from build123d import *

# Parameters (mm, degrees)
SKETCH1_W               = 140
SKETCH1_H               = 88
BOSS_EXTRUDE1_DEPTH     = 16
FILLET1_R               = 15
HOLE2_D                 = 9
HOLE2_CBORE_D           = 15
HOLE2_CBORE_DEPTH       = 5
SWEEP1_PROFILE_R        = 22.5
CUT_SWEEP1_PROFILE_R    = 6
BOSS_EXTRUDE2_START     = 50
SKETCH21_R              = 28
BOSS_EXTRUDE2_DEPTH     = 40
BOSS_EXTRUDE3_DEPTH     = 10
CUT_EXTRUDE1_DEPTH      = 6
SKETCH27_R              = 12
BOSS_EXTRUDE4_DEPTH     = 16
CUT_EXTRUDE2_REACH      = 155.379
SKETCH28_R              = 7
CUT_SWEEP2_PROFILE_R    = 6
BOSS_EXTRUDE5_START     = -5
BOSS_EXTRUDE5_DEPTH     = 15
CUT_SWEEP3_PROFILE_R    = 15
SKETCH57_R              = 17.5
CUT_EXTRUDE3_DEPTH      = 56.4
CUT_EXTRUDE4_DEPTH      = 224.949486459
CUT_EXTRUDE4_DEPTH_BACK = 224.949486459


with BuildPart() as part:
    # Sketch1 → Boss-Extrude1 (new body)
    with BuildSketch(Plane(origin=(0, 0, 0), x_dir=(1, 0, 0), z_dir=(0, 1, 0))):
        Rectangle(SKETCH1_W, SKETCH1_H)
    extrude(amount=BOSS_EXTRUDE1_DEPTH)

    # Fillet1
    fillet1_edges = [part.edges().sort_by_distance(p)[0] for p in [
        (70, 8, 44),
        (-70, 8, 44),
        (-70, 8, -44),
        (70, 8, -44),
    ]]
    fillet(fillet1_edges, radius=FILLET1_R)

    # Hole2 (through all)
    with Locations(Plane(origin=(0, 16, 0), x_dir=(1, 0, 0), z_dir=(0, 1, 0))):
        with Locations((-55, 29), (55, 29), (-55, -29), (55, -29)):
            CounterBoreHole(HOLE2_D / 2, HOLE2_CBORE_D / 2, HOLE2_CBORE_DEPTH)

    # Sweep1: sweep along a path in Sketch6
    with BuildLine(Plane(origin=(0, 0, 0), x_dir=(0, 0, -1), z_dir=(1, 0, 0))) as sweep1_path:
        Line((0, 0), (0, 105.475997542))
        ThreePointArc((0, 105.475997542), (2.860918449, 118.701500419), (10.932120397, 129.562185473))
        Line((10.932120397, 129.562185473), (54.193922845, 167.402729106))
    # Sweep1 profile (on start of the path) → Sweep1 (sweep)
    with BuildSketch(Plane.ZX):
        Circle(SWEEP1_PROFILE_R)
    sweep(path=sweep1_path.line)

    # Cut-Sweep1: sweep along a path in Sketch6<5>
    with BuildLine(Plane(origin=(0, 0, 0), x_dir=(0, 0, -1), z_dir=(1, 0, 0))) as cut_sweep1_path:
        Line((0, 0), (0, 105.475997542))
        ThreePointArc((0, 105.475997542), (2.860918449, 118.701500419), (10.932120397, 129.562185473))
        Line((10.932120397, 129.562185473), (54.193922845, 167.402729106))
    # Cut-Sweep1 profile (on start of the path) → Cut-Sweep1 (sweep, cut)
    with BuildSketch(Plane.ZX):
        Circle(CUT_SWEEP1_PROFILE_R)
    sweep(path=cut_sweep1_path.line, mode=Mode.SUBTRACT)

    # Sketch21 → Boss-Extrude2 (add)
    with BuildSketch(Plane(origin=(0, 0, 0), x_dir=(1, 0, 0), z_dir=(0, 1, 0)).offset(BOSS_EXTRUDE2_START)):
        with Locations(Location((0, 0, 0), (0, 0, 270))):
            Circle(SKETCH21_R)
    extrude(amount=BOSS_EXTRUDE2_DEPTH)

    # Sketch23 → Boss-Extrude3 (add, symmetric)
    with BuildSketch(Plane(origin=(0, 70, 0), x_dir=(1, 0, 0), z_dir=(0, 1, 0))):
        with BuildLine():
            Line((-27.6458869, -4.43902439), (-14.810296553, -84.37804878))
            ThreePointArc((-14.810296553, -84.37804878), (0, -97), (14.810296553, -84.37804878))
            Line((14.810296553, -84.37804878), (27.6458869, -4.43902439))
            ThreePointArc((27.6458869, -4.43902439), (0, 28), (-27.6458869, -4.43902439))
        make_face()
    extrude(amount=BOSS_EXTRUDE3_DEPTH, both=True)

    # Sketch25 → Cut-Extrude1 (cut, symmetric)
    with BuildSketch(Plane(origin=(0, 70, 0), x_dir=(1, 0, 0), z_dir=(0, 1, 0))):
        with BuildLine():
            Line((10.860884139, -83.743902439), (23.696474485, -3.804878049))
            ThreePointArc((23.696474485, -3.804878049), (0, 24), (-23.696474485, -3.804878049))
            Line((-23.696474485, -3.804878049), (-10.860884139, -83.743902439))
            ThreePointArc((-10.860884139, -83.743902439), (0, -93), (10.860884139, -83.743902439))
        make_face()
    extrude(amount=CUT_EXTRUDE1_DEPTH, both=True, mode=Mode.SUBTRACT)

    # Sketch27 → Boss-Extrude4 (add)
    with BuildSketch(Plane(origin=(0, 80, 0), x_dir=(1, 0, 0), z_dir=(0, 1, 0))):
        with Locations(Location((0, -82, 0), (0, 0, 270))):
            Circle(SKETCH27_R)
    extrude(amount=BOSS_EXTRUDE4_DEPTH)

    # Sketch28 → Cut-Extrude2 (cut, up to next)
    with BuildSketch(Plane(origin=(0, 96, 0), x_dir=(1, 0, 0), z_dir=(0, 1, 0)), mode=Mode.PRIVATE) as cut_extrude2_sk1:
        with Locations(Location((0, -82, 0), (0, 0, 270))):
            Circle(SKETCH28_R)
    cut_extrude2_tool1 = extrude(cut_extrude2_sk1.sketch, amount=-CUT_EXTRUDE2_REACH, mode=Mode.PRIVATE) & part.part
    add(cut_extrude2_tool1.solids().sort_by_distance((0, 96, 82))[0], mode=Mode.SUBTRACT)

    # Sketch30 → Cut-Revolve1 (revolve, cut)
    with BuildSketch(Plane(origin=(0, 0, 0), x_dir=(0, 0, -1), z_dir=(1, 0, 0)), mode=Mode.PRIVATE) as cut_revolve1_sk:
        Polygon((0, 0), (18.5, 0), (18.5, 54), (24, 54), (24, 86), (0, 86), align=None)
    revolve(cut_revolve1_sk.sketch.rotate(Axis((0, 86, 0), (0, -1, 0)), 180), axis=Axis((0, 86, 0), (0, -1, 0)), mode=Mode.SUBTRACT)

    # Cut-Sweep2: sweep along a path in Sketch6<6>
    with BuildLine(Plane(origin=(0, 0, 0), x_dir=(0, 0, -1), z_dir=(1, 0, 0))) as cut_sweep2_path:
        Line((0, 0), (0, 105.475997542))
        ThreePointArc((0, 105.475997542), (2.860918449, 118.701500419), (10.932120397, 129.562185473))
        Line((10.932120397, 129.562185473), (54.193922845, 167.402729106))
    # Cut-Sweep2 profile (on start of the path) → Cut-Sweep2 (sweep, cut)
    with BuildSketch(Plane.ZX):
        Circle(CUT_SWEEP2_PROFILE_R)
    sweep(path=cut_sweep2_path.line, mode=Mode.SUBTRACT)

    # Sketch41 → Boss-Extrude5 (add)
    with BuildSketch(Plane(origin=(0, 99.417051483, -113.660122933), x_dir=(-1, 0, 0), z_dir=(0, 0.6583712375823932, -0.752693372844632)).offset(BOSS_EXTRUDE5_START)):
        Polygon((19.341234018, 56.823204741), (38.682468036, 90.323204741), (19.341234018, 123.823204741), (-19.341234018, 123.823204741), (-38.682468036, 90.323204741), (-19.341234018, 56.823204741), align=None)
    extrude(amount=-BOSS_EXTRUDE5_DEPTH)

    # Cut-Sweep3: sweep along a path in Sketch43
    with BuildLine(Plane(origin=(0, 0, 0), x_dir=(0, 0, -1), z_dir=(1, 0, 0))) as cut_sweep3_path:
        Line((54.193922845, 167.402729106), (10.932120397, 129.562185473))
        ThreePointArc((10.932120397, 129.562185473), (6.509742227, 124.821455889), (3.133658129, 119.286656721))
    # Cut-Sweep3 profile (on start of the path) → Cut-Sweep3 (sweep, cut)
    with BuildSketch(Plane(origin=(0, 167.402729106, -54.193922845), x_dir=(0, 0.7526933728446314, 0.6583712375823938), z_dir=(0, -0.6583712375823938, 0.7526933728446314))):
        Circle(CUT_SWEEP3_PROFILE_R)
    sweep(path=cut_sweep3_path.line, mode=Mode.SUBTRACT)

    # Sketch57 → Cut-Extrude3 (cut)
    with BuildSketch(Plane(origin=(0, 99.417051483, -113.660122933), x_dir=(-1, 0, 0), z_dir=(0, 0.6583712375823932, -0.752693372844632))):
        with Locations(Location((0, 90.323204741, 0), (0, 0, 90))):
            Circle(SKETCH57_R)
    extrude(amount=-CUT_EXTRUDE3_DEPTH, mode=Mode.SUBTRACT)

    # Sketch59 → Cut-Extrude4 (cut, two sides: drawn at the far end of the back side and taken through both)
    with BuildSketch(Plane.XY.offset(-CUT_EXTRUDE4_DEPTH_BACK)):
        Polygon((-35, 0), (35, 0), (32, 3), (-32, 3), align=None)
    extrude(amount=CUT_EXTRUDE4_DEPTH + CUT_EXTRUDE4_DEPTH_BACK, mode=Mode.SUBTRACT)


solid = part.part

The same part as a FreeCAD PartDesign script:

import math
import FreeCAD as App
import Part
import Sketcher

V = App.Vector
Q = App.Units.Quantity


def edges_at(feature, points):
    """Names of the edges that pass closest to the given points."""
    edges = feature.Shape.Edges
    near = lambda p: min(range(len(edges)), key=lambda i: edges[i].distToShape(Part.Vertex(*p))[0])
    return sorted({f"Edge{near(p) + 1}" for p in points})


def add_polygon(sketch, points):
    """Adds a closed chain of lines whose ends are joined by coincident constraints."""
    first, n = sketch.GeometryCount, len(points)
    for a, b in zip(points, points[1:] + points[:1]):
        sketch.addGeometry(Part.LineSegment(App.Vector(*a, 0), App.Vector(*b, 0)), False)
    for i in range(n):
        sketch.addConstraint(Sketcher.Constraint("Coincident", first + i, 2, first + (i + 1) % n, 1))

doc = App.newDocument("Part")
body = doc.addObject("PartDesign::Body", "Body")

# Sketch on XZ plane
sketch1 = body.newObject("Sketcher::SketchObject", "Sketch")
sketch1.AttachmentSupport = (doc.getObject("XZ_Plane"), [""])
sketch1.MapMode = "FlatFace"
add_polygon(sketch1, [(-70, -44), (-70, 44), (70, 44), (70, -44)])  # lines 0-3
sketch1.addConstraint([
    Sketcher.Constraint("Vertical", 0),
    Sketcher.Constraint("Horizontal", 1),
    Sketcher.Constraint("Vertical", 2),
    Sketcher.Constraint("Horizontal", 3),
    Sketcher.Constraint("Symmetric", 0, 2, 2, 2, -1, 1),
    Sketcher.Constraint("DistanceX", 1, 1, 1, 2, Q("140 mm")),
    Sketcher.Constraint("DistanceY", 0, 1, 0, 2, Q("88 mm")),
])
pad1 = body.newObject("PartDesign::Pad", "Pad")
pad1.Profile = sketch1
pad1.Length = 16
pad1.Reversed = True
doc.recompute()

fillet = body.newObject("PartDesign::Fillet", "Fillet")
fillet.Base = (pad1, edges_at(pad1, [
    (70, 8, 44),
    (-70, 8, 44),
    (-70, 8, -44),
    (70, 8, -44),
]))
fillet.Radius = 15

# Sketch on XZ plane
sketch2 = body.newObject("Sketcher::SketchObject", "Sketch001")
sketch2.AttachmentSupport = (doc.getObject("XZ_Plane"), [""])
sketch2.MapMode = "FlatFace"
sketch2.AttachmentOffset = App.Placement(V(0, 0, -16), App.Rotation())
sketch2.addGeometry([
    Part.Circle(V(-55, -29, 0), V(0, 0, 1), 4.5),
    Part.Circle(V(55, -29, 0), V(0, 0, 1), 4.5),
    Part.Circle(V(-55, 29, 0), V(0, 0, 1), 4.5),
    Part.Circle(V(55, 29, 0), V(0, 0, 1), 4.5),
], False)
sketch2.addConstraint([
    Sketcher.Constraint("Equal", 0, 1),
    Sketcher.Constraint("Equal", 1, 2),
    Sketcher.Constraint("Equal", 2, 3),
    Sketcher.Constraint("Symmetric", 1, 3, 2, 3, -1, 1),
    Sketcher.Constraint("Symmetric", 0, 3, 3, 3, -1, 1),
    Sketcher.Constraint("Symmetric", 0, 3, 1, 3, -2),
    Sketcher.Constraint("Diameter", 0, Q("9 mm")),
    Sketcher.Constraint("DistanceX", 0, 3, -1, 1, Q("55 mm")),
    Sketcher.Constraint("DistanceY", 0, 3, -1, 1, Q("29 mm")),
])
doc.recompute()
hole = body.newObject("PartDesign::Hole", "Hole")
hole.Profile = sketch2
hole.ThreadType = "None"
hole.Diameter = 9
hole.DepthType = "ThroughAll"
hole.HoleCutType = "Counterbore"
hole.HoleCutDiameter = 15
hole.HoleCutDepth = 5
hole.Reversed = True

# Sketch on XZ plane
sketch3 = body.newObject("Sketcher::SketchObject", "Sketch002")
sketch3.AttachmentSupport = (doc.getObject("XZ_Plane"), [""])
sketch3.MapMode = "FlatFace"
sketch3.addGeometry(Part.Circle(V(0, 0, 0), V(0, 0, 1), 22.5), False)
sketch3.addConstraint([
    Sketcher.Constraint("Coincident", 0, 3, -1, 1),
    Sketcher.Constraint("Diameter", 0, Q("45 mm")),
])

# Sketch on YZ plane
sketch4 = body.newObject("Sketcher::SketchObject", "Sketch003")
sketch4.AttachmentSupport = (doc.getObject("YZ_Plane"), [""])
sketch4.MapMode = "FlatFace"
sketch4.addGeometry([
    Part.LineSegment(V(0, 0, 0), V(105.475998, 0, 0)),
    Part.ArcOfCircle(Part.Circle(V(105.475998, -32, 0), V(0, 0, 1), 32), math.radians(41.175772), math.radians(90)),
    Part.LineSegment(V(129.562185, -10.93212, 0), V(167.402729, -54.193923, 0)),
], False)
sketch4.addConstraint([
    Sketcher.Constraint("Tangent", 0, 2, 1, 2),
    Sketcher.Constraint("Tangent", 1, 1, 2, 1),
    Sketcher.Constraint("Horizontal", 0),
    Sketcher.Constraint("Coincident", 0, 1, -1, 1),
    Sketcher.Constraint("Radius", 1, Q("32 mm")),
    Sketcher.Constraint("DistanceX", 0, 1, 0, 2, Q("105.475998 mm")),
    Sketcher.Constraint("DistanceY", 1, 1, -1, 1, Q("10.93212 mm")),
    Sketcher.Constraint("DistanceX", -1, 1, 2, 2, Q("167.402729 mm")),
])
doc.recompute()

additivepipe = body.newObject("PartDesign::AdditivePipe", "AdditivePipe")
additivepipe.Profile = sketch3
additivepipe.Spine = (sketch4, ["Edge1", "Edge2", "Edge3"])

# Sketch on XZ plane
sketch5 = body.newObject("Sketcher::SketchObject", "Sketch004")
sketch5.AttachmentSupport = (doc.getObject("XZ_Plane"), [""])
sketch5.MapMode = "FlatFace"
sketch5.addGeometry(Part.Circle(V(0, 0, 0), V(0, 0, 1), 6), False)
sketch5.addConstraint([
    Sketcher.Constraint("Coincident", 0, 3, -1, 1),
    Sketcher.Constraint("Diameter", 0, Q("12 mm")),
])

# Sketch on YZ plane
sketch6 = body.newObject("Sketcher::SketchObject", "Sketch005")
sketch6.AttachmentSupport = (doc.getObject("YZ_Plane"), [""])
sketch6.MapMode = "FlatFace"
sketch6.addGeometry([
    Part.LineSegment(V(0, 0, 0), V(105.475998, 0, 0)),
    Part.ArcOfCircle(Part.Circle(V(105.475998, -32, 0), V(0, 0, 1), 32), math.radians(41.175772), math.radians(90)),
    Part.LineSegment(V(129.562185, -10.93212, 0), V(167.402729, -54.193923, 0)),
], False)
sketch6.addConstraint([
    Sketcher.Constraint("Tangent", 0, 2, 1, 2),
    Sketcher.Constraint("Tangent", 1, 1, 2, 1),
    Sketcher.Constraint("Horizontal", 0),
    Sketcher.Constraint("Coincident", 0, 1, -1, 1),
    Sketcher.Constraint("Radius", 1, Q("32 mm")),
    Sketcher.Constraint("DistanceX", 0, 1, 0, 2, Q("105.475998 mm")),
    Sketcher.Constraint("DistanceY", 1, 1, -1, 1, Q("10.93212 mm")),
    Sketcher.Constraint("DistanceX", -1, 1, 2, 2, Q("167.402729 mm")),
])
doc.recompute()

subtractivepipe = body.newObject("PartDesign::SubtractivePipe", "SubtractivePipe")
subtractivepipe.Profile = sketch5
subtractivepipe.Spine = (sketch6, ["Edge1", "Edge2", "Edge3"])

# Sketch on XZ plane
sketch7 = body.newObject("Sketcher::SketchObject", "Sketch006")
sketch7.AttachmentSupport = (doc.getObject("XZ_Plane"), [""])
sketch7.MapMode = "FlatFace"
sketch7.AttachmentOffset = App.Placement(V(0, 0, -50), App.Rotation())
sketch7.addGeometry(Part.Circle(V(0, 0, 0), V(0, 0, 1), 28), False)
sketch7.addConstraint([
    Sketcher.Constraint("Coincident", 0, 3, -1, 1),
    Sketcher.Constraint("Diameter", 0, Q("56 mm")),
])
pad2 = body.newObject("PartDesign::Pad", "Pad001")
pad2.Profile = sketch7
pad2.Length = 40
pad2.Reversed = True

# Sketch on XZ plane
sketch8 = body.newObject("Sketcher::SketchObject", "Sketch007")
sketch8.AttachmentSupport = (doc.getObject("XZ_Plane"), [""])
sketch8.MapMode = "FlatFace"
sketch8.AttachmentOffset = App.Placement(V(0, 0, -70), App.Rotation())
sketch8.addGeometry([
    Part.LineSegment(V(-27.645887, 4.439024, 0), V(-14.810297, 84.378049, 0)),
    Part.ArcOfCircle(Part.Circle(V(0, 82, 0), V(0, 0, 1), 15), math.radians(9.121965), math.radians(170.878035)),
    Part.LineSegment(V(14.810297, 84.378049, 0), V(27.645887, 4.439024, 0)),
    Part.ArcOfCircle(Part.Circle(V(0, 0, 0), V(0, 0, 1), 28), math.radians(170.878035), math.radians(369.121965)),
], False)
sketch8.addConstraint([
    Sketcher.Constraint("Tangent", 0, 2, 1, 2),
    Sketcher.Constraint("Tangent", 1, 1, 2, 1),
    Sketcher.Constraint("Tangent", 2, 2, 3, 2),
    Sketcher.Constraint("Tangent", 3, 1, 0, 1),
    Sketcher.Constraint("Coincident", 3, 3, -1, 1),
    Sketcher.Constraint("PointOnObject", 1, 3, -2),
    Sketcher.Constraint("Radius", 1, Q("15 mm")),
    Sketcher.Constraint("Radius", 3, Q("28 mm")),
    Sketcher.Constraint("DistanceY", -1, 1, 1, 3, Q("82 mm")),
])
pad3 = body.newObject("PartDesign::Pad", "Pad002")
pad3.Profile = sketch8
pad3.Length = 20
pad3.Midplane = True

# Sketch on XZ plane
sketch9 = body.newObject("Sketcher::SketchObject", "Sketch008")
sketch9.AttachmentSupport = (doc.getObject("XZ_Plane"), [""])
sketch9.MapMode = "FlatFace"
sketch9.AttachmentOffset = App.Placement(V(0, 0, -70), App.Rotation())
sketch9.addGeometry([
    Part.LineSegment(V(10.860884, 83.743902, 0), V(23.696474, 3.804878, 0)),
    Part.ArcOfCircle(Part.Circle(V(0, 0, 0), V(0, 0, 1), 24), math.radians(170.878035), math.radians(369.121965)),
    Part.LineSegment(V(-23.696474, 3.804878, 0), V(-10.860884, 83.743902, 0)),
    Part.ArcOfCircle(Part.Circle(V(0, 82, 0), V(0, 0, 1), 11), math.radians(9.121965), math.radians(170.878035)),
], False)
sketch9.addConstraint([
    Sketcher.Constraint("Tangent", 0, 2, 1, 2),
    Sketcher.Constraint("Tangent", 1, 1, 2, 1),
    Sketcher.Constraint("Tangent", 2, 2, 3, 2),
    Sketcher.Constraint("Tangent", 3, 1, 0, 1),
    Sketcher.Constraint("Coincident", 1, 3, -1, 1),
    Sketcher.Constraint("PointOnObject", 3, 3, -2),
    Sketcher.Constraint("Radius", 1, Q("24 mm")),
    Sketcher.Constraint("Radius", 3, Q("11 mm")),
    Sketcher.Constraint("DistanceY", -1, 1, 3, 3, Q("82 mm")),
])
pocket1 = body.newObject("PartDesign::Pocket", "Pocket")
pocket1.Profile = sketch9
pocket1.Length = 12
pocket1.Midplane = True

# Sketch on XZ plane
sketch10 = body.newObject("Sketcher::SketchObject", "Sketch009")
sketch10.AttachmentSupport = (doc.getObject("XZ_Plane"), [""])
sketch10.MapMode = "FlatFace"
sketch10.AttachmentOffset = App.Placement(V(0, 0, -80), App.Rotation())
sketch10.addGeometry(Part.Circle(V(0, 82, 0), V(0, 0, 1), 12), False)
sketch10.addConstraint([
    Sketcher.Constraint("PointOnObject", 0, 3, -2),
    Sketcher.Constraint("Diameter", 0, Q("24 mm")),
    Sketcher.Constraint("DistanceY", -1, 1, 0, 3, Q("82 mm")),
])
pad4 = body.newObject("PartDesign::Pad", "Pad003")
pad4.Profile = sketch10
pad4.Length = 16
pad4.Reversed = True

# Sketch on XZ plane
sketch11 = body.newObject("Sketcher::SketchObject", "Sketch010")
sketch11.AttachmentSupport = (doc.getObject("XZ_Plane"), [""])
sketch11.MapMode = "FlatFace"
sketch11.AttachmentOffset = App.Placement(V(0, 0, -96), App.Rotation())
sketch11.addGeometry(Part.Circle(V(0, 82, 0), V(0, 0, 1), 7), False)
sketch11.addConstraint([
    Sketcher.Constraint("PointOnObject", 0, 3, -2),
    Sketcher.Constraint("Diameter", 0, Q("14 mm")),
    Sketcher.Constraint("DistanceY", -1, 1, 0, 3, Q("82 mm")),
])
pocket2 = body.newObject("PartDesign::Pocket", "Pocket001")
pocket2.Profile = sketch11
pocket2.Type = "UpToFirst"
pocket2.Reversed = True

# Sketch on YZ plane
sketch12 = body.newObject("Sketcher::SketchObject", "Sketch011")
sketch12.AttachmentSupport = (doc.getObject("YZ_Plane"), [""])
sketch12.MapMode = "FlatFace"
add_polygon(sketch12, [(0, 0), (0, -18.5), (54, -18.5), (54, -24), (86, -24), (86, 0)])  # lines 0-5
sketch12.addConstraint([
    Sketcher.Constraint("Vertical", 0),
    Sketcher.Constraint("Horizontal", 1),
    Sketcher.Constraint("Vertical", 2),
    Sketcher.Constraint("Horizontal", 3),
    Sketcher.Constraint("Vertical", 4),
    Sketcher.Constraint("Horizontal", 5),
    Sketcher.Constraint("Coincident", 5, 2, -1, 1),
    Sketcher.Constraint("DistanceX", 1, 1, 1, 2, Q("54 mm")),
    Sketcher.Constraint("DistanceX", 3, 1, 3, 2, Q("32 mm")),
    Sketcher.Constraint("DistanceY", 4, 1, 4, 2, Q("24 mm")),
    Sketcher.Constraint("DistanceY", 0, 2, 0, 1, Q("18.5 mm")),
])
groove = body.newObject("PartDesign::Groove", "Groove")
groove.Profile = sketch12
groove.ReferenceAxis = (sketch12, ["H_Axis"])
groove.Angle = 360

# Sketch on XZ plane
sketch13 = body.newObject("Sketcher::SketchObject", "Sketch012")
sketch13.AttachmentSupport = (doc.getObject("XZ_Plane"), [""])
sketch13.MapMode = "FlatFace"
sketch13.addGeometry(Part.Circle(V(0, 0, 0), V(0, 0, 1), 6), False)
sketch13.addConstraint([
    Sketcher.Constraint("Coincident", 0, 3, -1, 1),
    Sketcher.Constraint("Diameter", 0, Q("12 mm")),
])

# Sketch on YZ plane
sketch14 = body.newObject("Sketcher::SketchObject", "Sketch013")
sketch14.AttachmentSupport = (doc.getObject("YZ_Plane"), [""])
sketch14.MapMode = "FlatFace"
sketch14.addGeometry([
    Part.LineSegment(V(0, 0, 0), V(105.475998, 0, 0)),
    Part.ArcOfCircle(Part.Circle(V(105.475998, -32, 0), V(0, 0, 1), 32), math.radians(41.175772), math.radians(90)),
    Part.LineSegment(V(129.562185, -10.93212, 0), V(167.402729, -54.193923, 0)),
], False)
sketch14.addConstraint([
    Sketcher.Constraint("Tangent", 0, 2, 1, 2),
    Sketcher.Constraint("Tangent", 1, 1, 2, 1),
    Sketcher.Constraint("Horizontal", 0),
    Sketcher.Constraint("Coincident", 0, 1, -1, 1),
    Sketcher.Constraint("Radius", 1, Q("32 mm")),
    Sketcher.Constraint("DistanceX", 0, 1, 0, 2, Q("105.475998 mm")),
    Sketcher.Constraint("DistanceY", 1, 1, -1, 1, Q("10.93212 mm")),
    Sketcher.Constraint("DistanceX", -1, 1, 2, 2, Q("167.402729 mm")),
])
doc.recompute()

subtractivepipe2 = body.newObject("PartDesign::SubtractivePipe", "SubtractivePipe001")
subtractivepipe2.Profile = sketch13
subtractivepipe2.Spine = (sketch14, ["Edge1", "Edge2", "Edge3"])

# Sketch on an angled plane
sketch15 = body.newObject("Sketcher::SketchObject", "Sketch014")
sketch15.Placement = App.Placement(V(0, 96.125195, -109.896656), App.Rotation(V(-1, 0, 0), V(0, 0.752693373, 0.658371238), V(0, 0.658371238, -0.752693373), "ZXY"))
add_polygon(sketch15, [(19.341234, 56.823205), (38.682468, 90.323205), (19.341234, 123.823205), (-19.341234, 123.823205), (-38.682468, 90.323205), (-19.341234, 56.823205)])  # lines 0-5
sketch15.addConstraint([
    Sketcher.Constraint("Horizontal", 2),
    Sketcher.Constraint("Horizontal", 5),
    Sketcher.Constraint("Symmetric", 0, 2, 3, 2, -2),
    Sketcher.Constraint("Parallel", 0, 3),
    Sketcher.Constraint("Parallel", 1, 4),
    Sketcher.Constraint("Vertical", 2, 2, 4, 2),
    Sketcher.Constraint("Vertical", 1, 2, 5, 2),
    Sketcher.Constraint("Angle", 0, Q("60 deg")),
    Sketcher.Constraint("DistanceY", 4, 2, 2, 2, Q("67 mm")),
    Sketcher.Constraint("DistanceX", 2, 2, 2, 1, Q("38.682468 mm")),
    Sketcher.Constraint("DistanceY", -1, 1, 0, 2, Q("90.323205 mm")),
])
pad5 = body.newObject("PartDesign::Pad", "Pad004")
pad5.Profile = sketch15
pad5.Length = 15
pad5.Reversed = True

# Sketch on an angled plane
sketch16 = body.newObject("Sketcher::SketchObject", "Sketch015")
sketch16.Placement = App.Placement(V(0, 167.402729, -54.193923), App.Rotation(V(0, 0.752693373, 0.658371238), V(-1.000000001, 0, 0), V(0, -0.658371238, 0.752693373), "ZXY"))
sketch16.addGeometry(Part.Circle(V(0, 0, 0), V(0, 0, 1), 15), False)
sketch16.addConstraint([
    Sketcher.Constraint("Coincident", 0, 3, -1, 1),
    Sketcher.Constraint("Diameter", 0, Q("30 mm")),
])

# Sketch on YZ plane
sketch17 = body.newObject("Sketcher::SketchObject", "Sketch016")
sketch17.AttachmentSupport = (doc.getObject("YZ_Plane"), [""])
sketch17.MapMode = "FlatFace"
sketch17.addGeometry([
    Part.LineSegment(V(167.402729, -54.193923, 0), V(129.562185, -10.93212, 0)),
    Part.ArcOfCircle(Part.Circle(V(105.475998, -32, 0), V(0, 0, 1), 32), math.radians(41.175772), math.radians(64.43193)),
], False)
sketch17.addConstraint([
    Sketcher.Constraint("Tangent", 0, 2, 1, 1),
    Sketcher.Constraint("Radius", 1, Q("32 mm")),
    Sketcher.Constraint("DistanceY", 1, 3, -1, 1, Q("32 mm")),
    Sketcher.Constraint("DistanceX", -1, 1, 0, 1, Q("167.402729 mm")),
    Sketcher.Constraint("DistanceY", 0, 2, -1, 1, Q("10.93212 mm")),
    Sketcher.Constraint("DistanceY", 1, 2, -1, 1, Q("3.133658 mm")),
    Sketcher.Constraint("DistanceX", 1, 3, 0, 1, Q("61.926732 mm")),
])
doc.recompute()

subtractivepipe3 = body.newObject("PartDesign::SubtractivePipe", "SubtractivePipe002")
subtractivepipe3.Profile = sketch16
subtractivepipe3.Spine = (sketch17, ["Edge1", "Edge2"])

# Sketch on an angled plane
sketch18 = body.newObject("Sketcher::SketchObject", "Sketch017")
sketch18.Placement = App.Placement(V(0, 99.417051, -113.660123), App.Rotation(V(-1, 0, 0), V(0, 0.752693373, 0.658371238), V(0, 0.658371238, -0.752693373), "ZXY"))
sketch18.addGeometry(Part.Circle(V(0, 90.323205, 0), V(0, 0, 1), 17.5), False)
sketch18.addConstraint([
    Sketcher.Constraint("PointOnObject", 0, 3, -2),
    Sketcher.Constraint("Diameter", 0, Q("35 mm")),
    Sketcher.Constraint("DistanceY", -1, 1, 0, 3, Q("90.323205 mm")),
])
pocket3 = body.newObject("PartDesign::Pocket", "Pocket002")
pocket3.Profile = sketch18
pocket3.Length = 56.4

# Sketch on XY plane
sketch19 = body.newObject("Sketcher::SketchObject", "Sketch018")
sketch19.AttachmentSupport = (doc.getObject("XY_Plane"), [""])
sketch19.MapMode = "FlatFace"
add_polygon(sketch19, [(-35, 0), (35, 0), (32, 3), (-32, 3)])  # lines 0-3
sketch19.addConstraint([
    Sketcher.Constraint("Horizontal", 0),
    Sketcher.Constraint("Horizontal", 2),
    Sketcher.Constraint("Symmetric", 0, 2, 3, 2, -1, 1),
    Sketcher.Constraint("Perpendicular", 1, 3),
    Sketcher.Constraint("Equal", 1, 3),
    Sketcher.Constraint("DistanceX", 0, 1, 0, 2, Q("70 mm")),
    Sketcher.Constraint("DistanceX", 2, 2, 2, 1, Q("64 mm")),
])
pocket4 = body.newObject("PartDesign::Pocket", "Pocket003")
pocket4.Profile = sketch19
pocket4.Type = "ThroughAll"
pocket4.Midplane = True

doc.recompute()
